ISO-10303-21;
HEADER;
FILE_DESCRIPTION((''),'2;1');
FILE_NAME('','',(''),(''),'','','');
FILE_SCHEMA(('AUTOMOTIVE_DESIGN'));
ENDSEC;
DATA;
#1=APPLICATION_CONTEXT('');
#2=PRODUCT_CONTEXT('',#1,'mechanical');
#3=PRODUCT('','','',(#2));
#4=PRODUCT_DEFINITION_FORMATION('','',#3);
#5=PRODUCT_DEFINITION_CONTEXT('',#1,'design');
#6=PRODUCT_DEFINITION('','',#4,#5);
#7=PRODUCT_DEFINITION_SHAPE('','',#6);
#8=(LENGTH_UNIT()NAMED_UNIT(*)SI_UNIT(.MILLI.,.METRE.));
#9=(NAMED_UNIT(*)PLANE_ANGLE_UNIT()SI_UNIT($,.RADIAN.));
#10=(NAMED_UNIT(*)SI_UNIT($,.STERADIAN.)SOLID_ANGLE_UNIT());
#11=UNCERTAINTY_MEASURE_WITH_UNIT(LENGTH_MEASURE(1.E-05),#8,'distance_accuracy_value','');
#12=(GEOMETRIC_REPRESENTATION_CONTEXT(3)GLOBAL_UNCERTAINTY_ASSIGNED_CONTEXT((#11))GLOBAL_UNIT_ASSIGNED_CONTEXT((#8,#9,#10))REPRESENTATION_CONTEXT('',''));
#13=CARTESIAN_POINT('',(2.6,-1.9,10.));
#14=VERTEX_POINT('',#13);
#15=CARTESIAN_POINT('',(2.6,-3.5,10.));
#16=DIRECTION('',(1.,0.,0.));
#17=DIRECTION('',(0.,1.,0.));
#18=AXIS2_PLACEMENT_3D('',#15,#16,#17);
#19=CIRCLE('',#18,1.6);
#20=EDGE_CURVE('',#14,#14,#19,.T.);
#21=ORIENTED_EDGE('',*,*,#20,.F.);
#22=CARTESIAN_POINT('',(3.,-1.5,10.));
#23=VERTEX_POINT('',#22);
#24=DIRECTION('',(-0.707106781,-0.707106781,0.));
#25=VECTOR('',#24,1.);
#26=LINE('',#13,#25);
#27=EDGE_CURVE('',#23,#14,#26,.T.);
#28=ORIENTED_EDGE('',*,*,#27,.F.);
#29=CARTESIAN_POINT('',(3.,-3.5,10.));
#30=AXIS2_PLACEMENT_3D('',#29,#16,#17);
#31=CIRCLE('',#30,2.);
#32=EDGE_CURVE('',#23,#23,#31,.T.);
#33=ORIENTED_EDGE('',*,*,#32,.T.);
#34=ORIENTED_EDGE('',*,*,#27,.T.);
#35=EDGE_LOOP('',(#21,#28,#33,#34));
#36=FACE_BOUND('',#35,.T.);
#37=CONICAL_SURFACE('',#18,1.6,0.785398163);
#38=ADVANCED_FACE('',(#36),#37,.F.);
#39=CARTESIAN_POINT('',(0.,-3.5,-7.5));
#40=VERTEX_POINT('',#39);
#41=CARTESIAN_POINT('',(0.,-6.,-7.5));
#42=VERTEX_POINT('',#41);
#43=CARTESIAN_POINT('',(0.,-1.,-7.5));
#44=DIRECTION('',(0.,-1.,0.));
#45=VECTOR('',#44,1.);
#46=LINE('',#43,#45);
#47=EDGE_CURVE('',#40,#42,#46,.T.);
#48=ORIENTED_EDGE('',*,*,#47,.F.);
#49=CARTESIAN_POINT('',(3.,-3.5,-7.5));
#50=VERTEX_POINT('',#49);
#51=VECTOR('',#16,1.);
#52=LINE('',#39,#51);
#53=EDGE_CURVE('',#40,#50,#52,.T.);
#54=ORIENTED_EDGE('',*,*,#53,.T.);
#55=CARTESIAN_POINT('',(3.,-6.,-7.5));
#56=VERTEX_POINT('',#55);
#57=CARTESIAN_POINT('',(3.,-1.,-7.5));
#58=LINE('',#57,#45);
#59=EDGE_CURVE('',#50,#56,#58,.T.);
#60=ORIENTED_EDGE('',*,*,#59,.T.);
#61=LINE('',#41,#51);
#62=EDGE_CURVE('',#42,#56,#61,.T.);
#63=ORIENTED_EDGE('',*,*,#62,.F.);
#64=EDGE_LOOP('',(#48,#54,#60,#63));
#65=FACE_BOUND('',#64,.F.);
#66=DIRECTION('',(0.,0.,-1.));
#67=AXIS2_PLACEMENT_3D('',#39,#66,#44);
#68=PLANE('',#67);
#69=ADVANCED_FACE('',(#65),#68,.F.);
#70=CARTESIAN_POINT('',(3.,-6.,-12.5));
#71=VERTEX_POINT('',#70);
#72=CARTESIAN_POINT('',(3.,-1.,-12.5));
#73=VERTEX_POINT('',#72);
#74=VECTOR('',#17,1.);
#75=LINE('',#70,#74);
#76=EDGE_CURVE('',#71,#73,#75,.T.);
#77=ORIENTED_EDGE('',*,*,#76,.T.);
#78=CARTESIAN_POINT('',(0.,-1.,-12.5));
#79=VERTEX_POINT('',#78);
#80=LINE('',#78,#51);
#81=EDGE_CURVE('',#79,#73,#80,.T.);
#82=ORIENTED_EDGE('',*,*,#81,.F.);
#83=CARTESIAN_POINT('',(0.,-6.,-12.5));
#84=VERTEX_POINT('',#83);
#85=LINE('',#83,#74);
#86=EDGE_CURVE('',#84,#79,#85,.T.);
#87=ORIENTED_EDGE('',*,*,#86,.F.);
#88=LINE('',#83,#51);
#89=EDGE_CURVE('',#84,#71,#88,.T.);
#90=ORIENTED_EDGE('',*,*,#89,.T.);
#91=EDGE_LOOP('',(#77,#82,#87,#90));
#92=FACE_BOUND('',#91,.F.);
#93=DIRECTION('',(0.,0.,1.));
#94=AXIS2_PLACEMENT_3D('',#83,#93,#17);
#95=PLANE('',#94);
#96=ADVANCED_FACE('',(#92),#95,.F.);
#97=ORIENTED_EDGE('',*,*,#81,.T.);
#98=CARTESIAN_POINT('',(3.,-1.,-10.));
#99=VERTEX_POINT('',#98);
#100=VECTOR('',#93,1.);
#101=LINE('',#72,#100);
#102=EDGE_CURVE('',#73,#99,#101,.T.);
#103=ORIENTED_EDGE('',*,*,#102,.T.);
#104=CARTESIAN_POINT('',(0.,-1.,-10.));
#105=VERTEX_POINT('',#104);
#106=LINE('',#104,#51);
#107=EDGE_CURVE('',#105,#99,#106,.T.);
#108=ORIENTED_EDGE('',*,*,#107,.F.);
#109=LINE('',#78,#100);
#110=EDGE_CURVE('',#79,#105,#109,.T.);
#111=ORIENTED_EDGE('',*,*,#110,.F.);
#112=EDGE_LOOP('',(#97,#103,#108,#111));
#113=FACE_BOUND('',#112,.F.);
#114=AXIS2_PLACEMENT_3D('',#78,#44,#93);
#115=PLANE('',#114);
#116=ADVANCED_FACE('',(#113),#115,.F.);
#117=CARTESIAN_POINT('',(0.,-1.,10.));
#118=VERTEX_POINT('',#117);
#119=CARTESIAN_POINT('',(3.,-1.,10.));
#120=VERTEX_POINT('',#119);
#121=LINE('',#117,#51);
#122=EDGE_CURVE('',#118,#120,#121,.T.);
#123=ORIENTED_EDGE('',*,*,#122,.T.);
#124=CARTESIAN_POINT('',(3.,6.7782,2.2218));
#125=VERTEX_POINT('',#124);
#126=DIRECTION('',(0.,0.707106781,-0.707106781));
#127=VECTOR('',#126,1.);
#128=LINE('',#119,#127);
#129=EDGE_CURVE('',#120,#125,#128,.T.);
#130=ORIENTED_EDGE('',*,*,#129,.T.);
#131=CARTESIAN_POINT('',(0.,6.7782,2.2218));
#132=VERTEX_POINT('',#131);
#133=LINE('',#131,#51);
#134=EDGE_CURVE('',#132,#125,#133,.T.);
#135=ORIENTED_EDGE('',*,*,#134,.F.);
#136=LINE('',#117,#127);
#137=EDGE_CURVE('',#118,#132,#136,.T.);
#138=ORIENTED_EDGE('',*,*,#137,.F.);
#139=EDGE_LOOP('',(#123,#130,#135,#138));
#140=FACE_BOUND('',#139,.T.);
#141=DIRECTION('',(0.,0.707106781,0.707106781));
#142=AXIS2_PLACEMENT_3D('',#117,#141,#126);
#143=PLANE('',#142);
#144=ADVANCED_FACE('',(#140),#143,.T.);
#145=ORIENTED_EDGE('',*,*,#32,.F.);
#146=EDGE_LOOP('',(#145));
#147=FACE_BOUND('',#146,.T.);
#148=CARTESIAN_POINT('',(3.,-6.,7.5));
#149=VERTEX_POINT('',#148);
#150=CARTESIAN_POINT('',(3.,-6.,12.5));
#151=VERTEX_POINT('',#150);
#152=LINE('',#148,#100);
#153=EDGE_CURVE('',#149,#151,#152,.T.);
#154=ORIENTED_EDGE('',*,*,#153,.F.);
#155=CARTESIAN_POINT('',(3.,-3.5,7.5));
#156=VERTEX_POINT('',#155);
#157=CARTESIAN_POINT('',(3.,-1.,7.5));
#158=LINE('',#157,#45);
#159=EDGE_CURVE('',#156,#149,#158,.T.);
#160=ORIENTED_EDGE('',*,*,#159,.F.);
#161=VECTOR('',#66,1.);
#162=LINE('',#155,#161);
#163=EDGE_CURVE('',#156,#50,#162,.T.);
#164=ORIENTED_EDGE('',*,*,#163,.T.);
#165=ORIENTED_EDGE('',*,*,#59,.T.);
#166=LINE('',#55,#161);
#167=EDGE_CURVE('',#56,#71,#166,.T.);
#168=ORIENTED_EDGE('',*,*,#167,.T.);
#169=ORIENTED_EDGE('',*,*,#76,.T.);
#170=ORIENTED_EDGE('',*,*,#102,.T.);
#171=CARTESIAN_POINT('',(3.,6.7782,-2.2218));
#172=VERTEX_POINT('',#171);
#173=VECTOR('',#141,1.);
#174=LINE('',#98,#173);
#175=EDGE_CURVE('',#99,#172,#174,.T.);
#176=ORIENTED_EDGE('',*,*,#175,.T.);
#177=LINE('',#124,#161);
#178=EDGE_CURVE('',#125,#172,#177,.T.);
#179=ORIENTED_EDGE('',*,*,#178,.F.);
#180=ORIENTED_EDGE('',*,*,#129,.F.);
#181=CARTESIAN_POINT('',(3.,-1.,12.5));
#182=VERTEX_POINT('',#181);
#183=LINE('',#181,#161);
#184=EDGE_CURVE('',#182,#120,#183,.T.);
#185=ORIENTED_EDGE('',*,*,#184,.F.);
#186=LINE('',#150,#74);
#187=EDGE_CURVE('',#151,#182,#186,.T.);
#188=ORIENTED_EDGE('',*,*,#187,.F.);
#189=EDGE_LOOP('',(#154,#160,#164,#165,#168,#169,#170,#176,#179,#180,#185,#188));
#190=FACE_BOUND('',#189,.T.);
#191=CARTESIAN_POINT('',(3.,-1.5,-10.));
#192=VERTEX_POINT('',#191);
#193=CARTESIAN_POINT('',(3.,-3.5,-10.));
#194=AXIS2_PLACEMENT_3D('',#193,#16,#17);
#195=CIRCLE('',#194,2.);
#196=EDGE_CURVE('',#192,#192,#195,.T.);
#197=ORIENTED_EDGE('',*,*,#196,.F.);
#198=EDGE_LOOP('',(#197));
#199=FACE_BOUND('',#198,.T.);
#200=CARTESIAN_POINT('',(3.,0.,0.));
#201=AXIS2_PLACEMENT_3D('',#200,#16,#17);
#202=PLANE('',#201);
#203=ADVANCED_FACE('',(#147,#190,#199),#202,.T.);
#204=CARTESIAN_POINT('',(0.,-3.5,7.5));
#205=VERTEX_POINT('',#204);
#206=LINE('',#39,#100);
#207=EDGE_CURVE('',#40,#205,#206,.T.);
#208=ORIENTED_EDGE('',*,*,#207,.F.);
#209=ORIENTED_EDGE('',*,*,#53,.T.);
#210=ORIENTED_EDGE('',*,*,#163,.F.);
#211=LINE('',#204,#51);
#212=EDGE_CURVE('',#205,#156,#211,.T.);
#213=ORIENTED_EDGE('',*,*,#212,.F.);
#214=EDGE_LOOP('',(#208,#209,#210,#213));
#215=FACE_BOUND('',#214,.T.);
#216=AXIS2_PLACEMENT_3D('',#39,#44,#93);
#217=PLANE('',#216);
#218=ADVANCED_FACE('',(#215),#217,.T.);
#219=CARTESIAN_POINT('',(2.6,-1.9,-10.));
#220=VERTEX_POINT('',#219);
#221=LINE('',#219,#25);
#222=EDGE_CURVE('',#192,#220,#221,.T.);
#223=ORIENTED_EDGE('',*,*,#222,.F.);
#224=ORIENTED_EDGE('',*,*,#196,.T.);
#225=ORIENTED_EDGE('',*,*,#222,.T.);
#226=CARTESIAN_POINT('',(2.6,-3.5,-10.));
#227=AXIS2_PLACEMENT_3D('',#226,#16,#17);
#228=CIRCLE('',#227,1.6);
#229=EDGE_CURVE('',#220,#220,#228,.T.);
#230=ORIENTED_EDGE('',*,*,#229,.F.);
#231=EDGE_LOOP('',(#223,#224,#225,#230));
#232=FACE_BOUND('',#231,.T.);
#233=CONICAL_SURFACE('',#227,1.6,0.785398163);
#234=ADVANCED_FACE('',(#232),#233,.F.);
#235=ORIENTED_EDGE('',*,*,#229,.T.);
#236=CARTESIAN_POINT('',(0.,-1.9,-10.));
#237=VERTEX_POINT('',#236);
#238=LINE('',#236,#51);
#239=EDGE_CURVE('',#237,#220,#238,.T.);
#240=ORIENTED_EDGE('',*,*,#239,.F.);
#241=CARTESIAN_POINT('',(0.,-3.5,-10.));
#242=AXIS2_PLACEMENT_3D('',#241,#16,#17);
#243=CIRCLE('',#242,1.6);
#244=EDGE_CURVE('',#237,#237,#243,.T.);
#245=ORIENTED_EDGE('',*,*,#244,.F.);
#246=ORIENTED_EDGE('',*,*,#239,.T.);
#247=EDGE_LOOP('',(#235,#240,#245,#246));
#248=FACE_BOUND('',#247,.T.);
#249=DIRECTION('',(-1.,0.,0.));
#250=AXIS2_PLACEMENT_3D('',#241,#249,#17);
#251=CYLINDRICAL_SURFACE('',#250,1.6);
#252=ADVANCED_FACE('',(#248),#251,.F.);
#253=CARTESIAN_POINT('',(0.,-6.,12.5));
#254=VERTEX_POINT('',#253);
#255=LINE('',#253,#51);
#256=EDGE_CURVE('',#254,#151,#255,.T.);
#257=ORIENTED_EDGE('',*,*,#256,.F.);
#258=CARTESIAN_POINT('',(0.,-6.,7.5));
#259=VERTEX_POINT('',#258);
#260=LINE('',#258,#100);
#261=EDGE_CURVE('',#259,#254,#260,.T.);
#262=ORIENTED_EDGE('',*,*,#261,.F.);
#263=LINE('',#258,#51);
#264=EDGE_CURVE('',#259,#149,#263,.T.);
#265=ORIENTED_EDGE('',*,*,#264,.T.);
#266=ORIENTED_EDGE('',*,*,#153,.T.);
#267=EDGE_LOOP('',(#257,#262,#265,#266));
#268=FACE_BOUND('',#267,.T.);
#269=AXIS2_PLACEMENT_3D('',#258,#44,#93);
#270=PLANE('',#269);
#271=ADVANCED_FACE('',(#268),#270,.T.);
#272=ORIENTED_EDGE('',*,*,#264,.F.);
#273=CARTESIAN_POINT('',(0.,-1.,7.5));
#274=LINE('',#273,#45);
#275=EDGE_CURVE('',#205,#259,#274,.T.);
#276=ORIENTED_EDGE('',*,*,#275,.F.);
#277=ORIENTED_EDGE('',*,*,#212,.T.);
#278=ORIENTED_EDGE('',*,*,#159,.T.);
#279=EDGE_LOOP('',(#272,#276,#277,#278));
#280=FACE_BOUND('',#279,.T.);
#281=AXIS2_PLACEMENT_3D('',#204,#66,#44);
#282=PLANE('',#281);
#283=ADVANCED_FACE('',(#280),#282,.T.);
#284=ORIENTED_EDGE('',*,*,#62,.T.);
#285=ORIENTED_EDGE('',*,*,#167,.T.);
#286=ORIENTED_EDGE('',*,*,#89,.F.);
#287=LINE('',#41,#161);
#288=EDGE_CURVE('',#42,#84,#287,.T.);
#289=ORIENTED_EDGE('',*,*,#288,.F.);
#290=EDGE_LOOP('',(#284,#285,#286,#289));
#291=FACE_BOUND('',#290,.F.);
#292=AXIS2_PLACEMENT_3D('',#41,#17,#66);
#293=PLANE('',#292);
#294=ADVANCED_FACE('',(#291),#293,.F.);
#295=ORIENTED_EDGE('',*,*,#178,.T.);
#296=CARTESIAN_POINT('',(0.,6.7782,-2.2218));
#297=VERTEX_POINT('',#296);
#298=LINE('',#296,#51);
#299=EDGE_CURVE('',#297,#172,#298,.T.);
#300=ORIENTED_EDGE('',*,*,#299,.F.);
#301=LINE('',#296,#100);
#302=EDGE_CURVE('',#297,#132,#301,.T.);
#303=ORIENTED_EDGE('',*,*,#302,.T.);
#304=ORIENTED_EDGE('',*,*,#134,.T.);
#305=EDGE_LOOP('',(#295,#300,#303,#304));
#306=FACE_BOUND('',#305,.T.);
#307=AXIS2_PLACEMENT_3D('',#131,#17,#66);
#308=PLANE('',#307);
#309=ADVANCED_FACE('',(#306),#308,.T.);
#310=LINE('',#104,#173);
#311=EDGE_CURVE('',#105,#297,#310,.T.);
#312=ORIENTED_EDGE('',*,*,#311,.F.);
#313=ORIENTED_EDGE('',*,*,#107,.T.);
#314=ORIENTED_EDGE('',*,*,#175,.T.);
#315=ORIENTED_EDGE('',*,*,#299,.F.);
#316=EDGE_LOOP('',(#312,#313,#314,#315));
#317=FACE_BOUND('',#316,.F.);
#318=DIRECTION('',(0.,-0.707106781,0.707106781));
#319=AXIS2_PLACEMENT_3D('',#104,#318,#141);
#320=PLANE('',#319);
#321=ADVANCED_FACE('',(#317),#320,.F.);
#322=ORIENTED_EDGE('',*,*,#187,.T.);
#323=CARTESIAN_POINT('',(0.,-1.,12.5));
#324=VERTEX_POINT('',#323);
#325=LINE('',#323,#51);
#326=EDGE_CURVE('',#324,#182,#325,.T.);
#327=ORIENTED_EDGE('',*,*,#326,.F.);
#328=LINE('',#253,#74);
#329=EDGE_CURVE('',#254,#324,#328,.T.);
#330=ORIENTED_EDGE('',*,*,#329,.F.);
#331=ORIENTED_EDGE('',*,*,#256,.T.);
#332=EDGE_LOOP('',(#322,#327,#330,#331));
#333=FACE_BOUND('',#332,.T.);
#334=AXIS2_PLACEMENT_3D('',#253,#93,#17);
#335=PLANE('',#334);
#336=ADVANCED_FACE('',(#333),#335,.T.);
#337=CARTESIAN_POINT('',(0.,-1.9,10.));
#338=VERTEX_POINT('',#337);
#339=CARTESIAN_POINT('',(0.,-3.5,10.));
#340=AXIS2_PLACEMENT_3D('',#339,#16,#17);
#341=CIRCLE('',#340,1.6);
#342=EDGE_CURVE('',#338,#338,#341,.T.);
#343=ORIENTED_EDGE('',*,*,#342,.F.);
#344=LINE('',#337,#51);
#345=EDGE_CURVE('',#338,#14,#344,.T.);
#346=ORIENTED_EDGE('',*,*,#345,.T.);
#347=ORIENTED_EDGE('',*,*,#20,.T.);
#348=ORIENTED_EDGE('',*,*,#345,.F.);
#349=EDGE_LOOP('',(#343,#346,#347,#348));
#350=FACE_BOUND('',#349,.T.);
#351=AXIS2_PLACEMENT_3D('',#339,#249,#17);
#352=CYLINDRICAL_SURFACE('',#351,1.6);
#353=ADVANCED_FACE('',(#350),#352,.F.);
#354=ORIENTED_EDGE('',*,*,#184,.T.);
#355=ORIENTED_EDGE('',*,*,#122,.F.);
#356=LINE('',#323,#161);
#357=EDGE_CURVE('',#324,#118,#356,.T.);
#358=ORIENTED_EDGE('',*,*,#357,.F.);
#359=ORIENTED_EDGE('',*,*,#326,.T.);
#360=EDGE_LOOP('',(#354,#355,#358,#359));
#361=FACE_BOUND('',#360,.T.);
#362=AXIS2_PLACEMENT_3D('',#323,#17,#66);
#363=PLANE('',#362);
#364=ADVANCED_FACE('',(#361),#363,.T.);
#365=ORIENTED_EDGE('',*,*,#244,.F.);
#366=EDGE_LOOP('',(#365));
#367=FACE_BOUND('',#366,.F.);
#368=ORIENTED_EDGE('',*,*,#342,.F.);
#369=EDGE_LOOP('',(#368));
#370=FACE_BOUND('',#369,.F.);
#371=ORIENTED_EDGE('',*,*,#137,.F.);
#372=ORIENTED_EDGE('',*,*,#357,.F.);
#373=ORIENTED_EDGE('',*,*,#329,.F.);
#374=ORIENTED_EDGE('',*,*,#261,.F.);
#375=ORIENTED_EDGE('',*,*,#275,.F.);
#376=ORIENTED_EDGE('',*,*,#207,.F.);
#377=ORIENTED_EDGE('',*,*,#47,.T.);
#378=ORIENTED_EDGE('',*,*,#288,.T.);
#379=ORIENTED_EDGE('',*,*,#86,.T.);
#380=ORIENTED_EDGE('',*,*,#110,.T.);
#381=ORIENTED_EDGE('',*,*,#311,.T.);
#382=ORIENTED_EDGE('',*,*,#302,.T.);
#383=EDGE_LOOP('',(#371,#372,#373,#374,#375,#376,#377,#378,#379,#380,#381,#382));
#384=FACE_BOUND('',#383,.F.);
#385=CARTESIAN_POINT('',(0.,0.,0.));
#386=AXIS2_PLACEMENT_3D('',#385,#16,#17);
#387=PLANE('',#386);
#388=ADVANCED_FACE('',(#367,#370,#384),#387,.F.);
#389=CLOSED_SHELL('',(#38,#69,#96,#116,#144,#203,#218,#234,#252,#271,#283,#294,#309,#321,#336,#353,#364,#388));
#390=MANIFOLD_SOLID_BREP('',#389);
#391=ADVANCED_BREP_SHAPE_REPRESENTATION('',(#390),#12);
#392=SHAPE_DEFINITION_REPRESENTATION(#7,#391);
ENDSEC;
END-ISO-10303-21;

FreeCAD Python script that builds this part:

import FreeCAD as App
import Part
import Sketcher

V = App.Vector


def edges_at(feature, points):
    """Names of the edges that pass closest to the given points."""
    edges = feature.Shape.Edges
    near = lambda p: min(range(len(edges)), key=lambda i: edges[i].distToShape(Part.Vertex(*p))[0])
    return sorted({f"Edge{near(p) + 1}" for p in points})

doc = App.newDocument("Part")
params = doc.addObject("Spreadsheet::Sheet", "Params")
for row, (alias, value) in enumerate([
    ("sketch1_diameter", "3.2 mm"),
    ("sketch1_width", "5 mm"),
    ("sketch1_length", "11 mm"),
    ("sketch1_width2", "2.5 mm"),
    ("pad1_length", "3 mm"),
    ("chamfer_size", "0.4 mm"),
], start=1):
    params.set(f"A{row}", alias)
    params.set(f"B{row}", "=" + value)
    params.setAlias(f"B{row}", alias)

body = doc.addObject("PartDesign::Body", "Body")

# Sketch on YZ plane
sketch1 = body.newObject("Sketcher::SketchObject", "Sketch")
sketch1.AttachmentSupport = (doc.getObject("YZ_Plane"), [""])
sketch1.MapMode = "FlatFace"
sketch1.addGeometry([
    Part.LineSegment(V(6.8, 2.2, 0), V(-1, 10, 0)),  # 0
    Part.LineSegment(V(-1, 10, 0), V(-1, 12.5, 0)),  # 1
    Part.LineSegment(V(-1, 12.5, 0), V(-6, 12.5, 0)),  # 2
    Part.LineSegment(V(-6, 12.5, 0), V(-6, 7.5, 0)),  # 3
    Part.LineSegment(V(-6, 7.5, 0), V(-3.5, 7.5, 0)),  # 4
    Part.LineSegment(V(-3.5, 7.5, 0), V(-3.5, -7.5, 0)),  # 5
    Part.LineSegment(V(-3.5, -7.5, 0), V(-6, -7.5, 0)),  # 6
    Part.LineSegment(V(-6, -7.5, 0), V(-6, -12.5, 0)),  # 7
    Part.LineSegment(V(-6, -12.5, 0), V(-1, -12.5, 0)),  # 8
    Part.LineSegment(V(-1, -12.5, 0), V(-1, -10, 0)),  # 9
    Part.LineSegment(V(-1, -10, 0), V(6.8, -2.2, 0)),  # 10
    Part.LineSegment(V(6.8, -2.2, 0), V(6.8, 2.2, 0)),  # 11
    Part.Circle(V(-3.5, 10, 0), V(0, 0, 1), 1.6),  # 12
    Part.Circle(V(-3.5, -10, 0), V(0, 0, 1), 1.6),  # 13
], False)
sketch1.addConstraint([
    Sketcher.Constraint("Coincident", 0, 2, 1, 1),
    Sketcher.Constraint("Coincident", 1, 2, 2, 1),
    Sketcher.Constraint("Coincident", 2, 2, 3, 1),
    Sketcher.Constraint("Coincident", 3, 2, 4, 1),
    Sketcher.Constraint("Coincident", 4, 2, 5, 1),
    Sketcher.Constraint("Coincident", 5, 2, 6, 1),
    Sketcher.Constraint("Coincident", 6, 2, 7, 1),
    Sketcher.Constraint("Coincident", 7, 2, 8, 1),
    Sketcher.Constraint("Coincident", 8, 2, 9, 1),
    Sketcher.Constraint("Coincident", 9, 2, 10, 1),
    Sketcher.Constraint("Coincident", 10, 2, 11, 1),
    Sketcher.Constraint("Coincident", 11, 2, 0, 1),
    Sketcher.Constraint("Vertical", 1),
    Sketcher.Constraint("Horizontal", 2),
    Sketcher.Constraint("Vertical", 3),
    Sketcher.Constraint("Horizontal", 4),
    Sketcher.Constraint("Vertical", 5),
    Sketcher.Constraint("Horizontal", 6),
    Sketcher.Constraint("Vertical", 7),
    Sketcher.Constraint("Horizontal", 8),
    Sketcher.Constraint("Vertical", 9),
    Sketcher.Constraint("Vertical", 11),
    Sketcher.Constraint("Equal", 12, 13),
    Sketcher.Constraint("Symmetric", 12, 3, 13, 3, -1),
    Sketcher.Constraint("Symmetric", 3, 2, 6, 2, -1),
    Sketcher.Constraint("Symmetric", 1, 2, 8, 2, -1),
    Sketcher.Constraint("Perpendicular", 0, 10),
    Sketcher.Constraint("Horizontal", 12, 3, 0, 2),
    Sketcher.Constraint("Horizontal", 13, 3, 9, 2),
    Sketcher.Constraint("Vertical", 13, 3, 4, 2),
    Sketcher.Constraint("Equal", 6, 1),
    Sketcher.Constraint("Equal", 8, 3),
    Sketcher.Constraint("Equal", 0, 10),
    Sketcher.Constraint("Diameter", 12, 3.2),
    Sketcher.Constraint("DistanceX", 2, 2, 2, 1, 5.0),
    Sketcher.Constraint("Distance", 0, 11.0),
    Sketcher.Constraint("DistanceX", 4, 1, 4, 2, 2.5),
    Sketcher.Constraint("DistanceY", -1, 1, 12, 3, 10.0),
    Sketcher.Constraint("DistanceX", 0, 2, -1, 1, 1.0),
])
sketch1.setExpression("Constraints[33]", "Params.sketch1_diameter")
sketch1.setExpression("Constraints[34]", "Params.sketch1_width")
sketch1.setExpression("Constraints[35]", "Params.sketch1_length")
sketch1.setExpression("Constraints[36]", "Params.sketch1_width2")
pad1 = body.newObject("PartDesign::Pad", "Pad")
pad1.Profile = sketch1
pad1.setExpression("Length", "Params.pad1_length")
doc.recompute()

chamfer = body.newObject("PartDesign::Chamfer", "Chamfer")
chamfer.Base = (pad1, edges_at(pad1, [(3, -5.1, 10), (3, -5.1, -10)]))
chamfer.setExpression("Size", "Params.chamfer_size")

doc.recompute()
